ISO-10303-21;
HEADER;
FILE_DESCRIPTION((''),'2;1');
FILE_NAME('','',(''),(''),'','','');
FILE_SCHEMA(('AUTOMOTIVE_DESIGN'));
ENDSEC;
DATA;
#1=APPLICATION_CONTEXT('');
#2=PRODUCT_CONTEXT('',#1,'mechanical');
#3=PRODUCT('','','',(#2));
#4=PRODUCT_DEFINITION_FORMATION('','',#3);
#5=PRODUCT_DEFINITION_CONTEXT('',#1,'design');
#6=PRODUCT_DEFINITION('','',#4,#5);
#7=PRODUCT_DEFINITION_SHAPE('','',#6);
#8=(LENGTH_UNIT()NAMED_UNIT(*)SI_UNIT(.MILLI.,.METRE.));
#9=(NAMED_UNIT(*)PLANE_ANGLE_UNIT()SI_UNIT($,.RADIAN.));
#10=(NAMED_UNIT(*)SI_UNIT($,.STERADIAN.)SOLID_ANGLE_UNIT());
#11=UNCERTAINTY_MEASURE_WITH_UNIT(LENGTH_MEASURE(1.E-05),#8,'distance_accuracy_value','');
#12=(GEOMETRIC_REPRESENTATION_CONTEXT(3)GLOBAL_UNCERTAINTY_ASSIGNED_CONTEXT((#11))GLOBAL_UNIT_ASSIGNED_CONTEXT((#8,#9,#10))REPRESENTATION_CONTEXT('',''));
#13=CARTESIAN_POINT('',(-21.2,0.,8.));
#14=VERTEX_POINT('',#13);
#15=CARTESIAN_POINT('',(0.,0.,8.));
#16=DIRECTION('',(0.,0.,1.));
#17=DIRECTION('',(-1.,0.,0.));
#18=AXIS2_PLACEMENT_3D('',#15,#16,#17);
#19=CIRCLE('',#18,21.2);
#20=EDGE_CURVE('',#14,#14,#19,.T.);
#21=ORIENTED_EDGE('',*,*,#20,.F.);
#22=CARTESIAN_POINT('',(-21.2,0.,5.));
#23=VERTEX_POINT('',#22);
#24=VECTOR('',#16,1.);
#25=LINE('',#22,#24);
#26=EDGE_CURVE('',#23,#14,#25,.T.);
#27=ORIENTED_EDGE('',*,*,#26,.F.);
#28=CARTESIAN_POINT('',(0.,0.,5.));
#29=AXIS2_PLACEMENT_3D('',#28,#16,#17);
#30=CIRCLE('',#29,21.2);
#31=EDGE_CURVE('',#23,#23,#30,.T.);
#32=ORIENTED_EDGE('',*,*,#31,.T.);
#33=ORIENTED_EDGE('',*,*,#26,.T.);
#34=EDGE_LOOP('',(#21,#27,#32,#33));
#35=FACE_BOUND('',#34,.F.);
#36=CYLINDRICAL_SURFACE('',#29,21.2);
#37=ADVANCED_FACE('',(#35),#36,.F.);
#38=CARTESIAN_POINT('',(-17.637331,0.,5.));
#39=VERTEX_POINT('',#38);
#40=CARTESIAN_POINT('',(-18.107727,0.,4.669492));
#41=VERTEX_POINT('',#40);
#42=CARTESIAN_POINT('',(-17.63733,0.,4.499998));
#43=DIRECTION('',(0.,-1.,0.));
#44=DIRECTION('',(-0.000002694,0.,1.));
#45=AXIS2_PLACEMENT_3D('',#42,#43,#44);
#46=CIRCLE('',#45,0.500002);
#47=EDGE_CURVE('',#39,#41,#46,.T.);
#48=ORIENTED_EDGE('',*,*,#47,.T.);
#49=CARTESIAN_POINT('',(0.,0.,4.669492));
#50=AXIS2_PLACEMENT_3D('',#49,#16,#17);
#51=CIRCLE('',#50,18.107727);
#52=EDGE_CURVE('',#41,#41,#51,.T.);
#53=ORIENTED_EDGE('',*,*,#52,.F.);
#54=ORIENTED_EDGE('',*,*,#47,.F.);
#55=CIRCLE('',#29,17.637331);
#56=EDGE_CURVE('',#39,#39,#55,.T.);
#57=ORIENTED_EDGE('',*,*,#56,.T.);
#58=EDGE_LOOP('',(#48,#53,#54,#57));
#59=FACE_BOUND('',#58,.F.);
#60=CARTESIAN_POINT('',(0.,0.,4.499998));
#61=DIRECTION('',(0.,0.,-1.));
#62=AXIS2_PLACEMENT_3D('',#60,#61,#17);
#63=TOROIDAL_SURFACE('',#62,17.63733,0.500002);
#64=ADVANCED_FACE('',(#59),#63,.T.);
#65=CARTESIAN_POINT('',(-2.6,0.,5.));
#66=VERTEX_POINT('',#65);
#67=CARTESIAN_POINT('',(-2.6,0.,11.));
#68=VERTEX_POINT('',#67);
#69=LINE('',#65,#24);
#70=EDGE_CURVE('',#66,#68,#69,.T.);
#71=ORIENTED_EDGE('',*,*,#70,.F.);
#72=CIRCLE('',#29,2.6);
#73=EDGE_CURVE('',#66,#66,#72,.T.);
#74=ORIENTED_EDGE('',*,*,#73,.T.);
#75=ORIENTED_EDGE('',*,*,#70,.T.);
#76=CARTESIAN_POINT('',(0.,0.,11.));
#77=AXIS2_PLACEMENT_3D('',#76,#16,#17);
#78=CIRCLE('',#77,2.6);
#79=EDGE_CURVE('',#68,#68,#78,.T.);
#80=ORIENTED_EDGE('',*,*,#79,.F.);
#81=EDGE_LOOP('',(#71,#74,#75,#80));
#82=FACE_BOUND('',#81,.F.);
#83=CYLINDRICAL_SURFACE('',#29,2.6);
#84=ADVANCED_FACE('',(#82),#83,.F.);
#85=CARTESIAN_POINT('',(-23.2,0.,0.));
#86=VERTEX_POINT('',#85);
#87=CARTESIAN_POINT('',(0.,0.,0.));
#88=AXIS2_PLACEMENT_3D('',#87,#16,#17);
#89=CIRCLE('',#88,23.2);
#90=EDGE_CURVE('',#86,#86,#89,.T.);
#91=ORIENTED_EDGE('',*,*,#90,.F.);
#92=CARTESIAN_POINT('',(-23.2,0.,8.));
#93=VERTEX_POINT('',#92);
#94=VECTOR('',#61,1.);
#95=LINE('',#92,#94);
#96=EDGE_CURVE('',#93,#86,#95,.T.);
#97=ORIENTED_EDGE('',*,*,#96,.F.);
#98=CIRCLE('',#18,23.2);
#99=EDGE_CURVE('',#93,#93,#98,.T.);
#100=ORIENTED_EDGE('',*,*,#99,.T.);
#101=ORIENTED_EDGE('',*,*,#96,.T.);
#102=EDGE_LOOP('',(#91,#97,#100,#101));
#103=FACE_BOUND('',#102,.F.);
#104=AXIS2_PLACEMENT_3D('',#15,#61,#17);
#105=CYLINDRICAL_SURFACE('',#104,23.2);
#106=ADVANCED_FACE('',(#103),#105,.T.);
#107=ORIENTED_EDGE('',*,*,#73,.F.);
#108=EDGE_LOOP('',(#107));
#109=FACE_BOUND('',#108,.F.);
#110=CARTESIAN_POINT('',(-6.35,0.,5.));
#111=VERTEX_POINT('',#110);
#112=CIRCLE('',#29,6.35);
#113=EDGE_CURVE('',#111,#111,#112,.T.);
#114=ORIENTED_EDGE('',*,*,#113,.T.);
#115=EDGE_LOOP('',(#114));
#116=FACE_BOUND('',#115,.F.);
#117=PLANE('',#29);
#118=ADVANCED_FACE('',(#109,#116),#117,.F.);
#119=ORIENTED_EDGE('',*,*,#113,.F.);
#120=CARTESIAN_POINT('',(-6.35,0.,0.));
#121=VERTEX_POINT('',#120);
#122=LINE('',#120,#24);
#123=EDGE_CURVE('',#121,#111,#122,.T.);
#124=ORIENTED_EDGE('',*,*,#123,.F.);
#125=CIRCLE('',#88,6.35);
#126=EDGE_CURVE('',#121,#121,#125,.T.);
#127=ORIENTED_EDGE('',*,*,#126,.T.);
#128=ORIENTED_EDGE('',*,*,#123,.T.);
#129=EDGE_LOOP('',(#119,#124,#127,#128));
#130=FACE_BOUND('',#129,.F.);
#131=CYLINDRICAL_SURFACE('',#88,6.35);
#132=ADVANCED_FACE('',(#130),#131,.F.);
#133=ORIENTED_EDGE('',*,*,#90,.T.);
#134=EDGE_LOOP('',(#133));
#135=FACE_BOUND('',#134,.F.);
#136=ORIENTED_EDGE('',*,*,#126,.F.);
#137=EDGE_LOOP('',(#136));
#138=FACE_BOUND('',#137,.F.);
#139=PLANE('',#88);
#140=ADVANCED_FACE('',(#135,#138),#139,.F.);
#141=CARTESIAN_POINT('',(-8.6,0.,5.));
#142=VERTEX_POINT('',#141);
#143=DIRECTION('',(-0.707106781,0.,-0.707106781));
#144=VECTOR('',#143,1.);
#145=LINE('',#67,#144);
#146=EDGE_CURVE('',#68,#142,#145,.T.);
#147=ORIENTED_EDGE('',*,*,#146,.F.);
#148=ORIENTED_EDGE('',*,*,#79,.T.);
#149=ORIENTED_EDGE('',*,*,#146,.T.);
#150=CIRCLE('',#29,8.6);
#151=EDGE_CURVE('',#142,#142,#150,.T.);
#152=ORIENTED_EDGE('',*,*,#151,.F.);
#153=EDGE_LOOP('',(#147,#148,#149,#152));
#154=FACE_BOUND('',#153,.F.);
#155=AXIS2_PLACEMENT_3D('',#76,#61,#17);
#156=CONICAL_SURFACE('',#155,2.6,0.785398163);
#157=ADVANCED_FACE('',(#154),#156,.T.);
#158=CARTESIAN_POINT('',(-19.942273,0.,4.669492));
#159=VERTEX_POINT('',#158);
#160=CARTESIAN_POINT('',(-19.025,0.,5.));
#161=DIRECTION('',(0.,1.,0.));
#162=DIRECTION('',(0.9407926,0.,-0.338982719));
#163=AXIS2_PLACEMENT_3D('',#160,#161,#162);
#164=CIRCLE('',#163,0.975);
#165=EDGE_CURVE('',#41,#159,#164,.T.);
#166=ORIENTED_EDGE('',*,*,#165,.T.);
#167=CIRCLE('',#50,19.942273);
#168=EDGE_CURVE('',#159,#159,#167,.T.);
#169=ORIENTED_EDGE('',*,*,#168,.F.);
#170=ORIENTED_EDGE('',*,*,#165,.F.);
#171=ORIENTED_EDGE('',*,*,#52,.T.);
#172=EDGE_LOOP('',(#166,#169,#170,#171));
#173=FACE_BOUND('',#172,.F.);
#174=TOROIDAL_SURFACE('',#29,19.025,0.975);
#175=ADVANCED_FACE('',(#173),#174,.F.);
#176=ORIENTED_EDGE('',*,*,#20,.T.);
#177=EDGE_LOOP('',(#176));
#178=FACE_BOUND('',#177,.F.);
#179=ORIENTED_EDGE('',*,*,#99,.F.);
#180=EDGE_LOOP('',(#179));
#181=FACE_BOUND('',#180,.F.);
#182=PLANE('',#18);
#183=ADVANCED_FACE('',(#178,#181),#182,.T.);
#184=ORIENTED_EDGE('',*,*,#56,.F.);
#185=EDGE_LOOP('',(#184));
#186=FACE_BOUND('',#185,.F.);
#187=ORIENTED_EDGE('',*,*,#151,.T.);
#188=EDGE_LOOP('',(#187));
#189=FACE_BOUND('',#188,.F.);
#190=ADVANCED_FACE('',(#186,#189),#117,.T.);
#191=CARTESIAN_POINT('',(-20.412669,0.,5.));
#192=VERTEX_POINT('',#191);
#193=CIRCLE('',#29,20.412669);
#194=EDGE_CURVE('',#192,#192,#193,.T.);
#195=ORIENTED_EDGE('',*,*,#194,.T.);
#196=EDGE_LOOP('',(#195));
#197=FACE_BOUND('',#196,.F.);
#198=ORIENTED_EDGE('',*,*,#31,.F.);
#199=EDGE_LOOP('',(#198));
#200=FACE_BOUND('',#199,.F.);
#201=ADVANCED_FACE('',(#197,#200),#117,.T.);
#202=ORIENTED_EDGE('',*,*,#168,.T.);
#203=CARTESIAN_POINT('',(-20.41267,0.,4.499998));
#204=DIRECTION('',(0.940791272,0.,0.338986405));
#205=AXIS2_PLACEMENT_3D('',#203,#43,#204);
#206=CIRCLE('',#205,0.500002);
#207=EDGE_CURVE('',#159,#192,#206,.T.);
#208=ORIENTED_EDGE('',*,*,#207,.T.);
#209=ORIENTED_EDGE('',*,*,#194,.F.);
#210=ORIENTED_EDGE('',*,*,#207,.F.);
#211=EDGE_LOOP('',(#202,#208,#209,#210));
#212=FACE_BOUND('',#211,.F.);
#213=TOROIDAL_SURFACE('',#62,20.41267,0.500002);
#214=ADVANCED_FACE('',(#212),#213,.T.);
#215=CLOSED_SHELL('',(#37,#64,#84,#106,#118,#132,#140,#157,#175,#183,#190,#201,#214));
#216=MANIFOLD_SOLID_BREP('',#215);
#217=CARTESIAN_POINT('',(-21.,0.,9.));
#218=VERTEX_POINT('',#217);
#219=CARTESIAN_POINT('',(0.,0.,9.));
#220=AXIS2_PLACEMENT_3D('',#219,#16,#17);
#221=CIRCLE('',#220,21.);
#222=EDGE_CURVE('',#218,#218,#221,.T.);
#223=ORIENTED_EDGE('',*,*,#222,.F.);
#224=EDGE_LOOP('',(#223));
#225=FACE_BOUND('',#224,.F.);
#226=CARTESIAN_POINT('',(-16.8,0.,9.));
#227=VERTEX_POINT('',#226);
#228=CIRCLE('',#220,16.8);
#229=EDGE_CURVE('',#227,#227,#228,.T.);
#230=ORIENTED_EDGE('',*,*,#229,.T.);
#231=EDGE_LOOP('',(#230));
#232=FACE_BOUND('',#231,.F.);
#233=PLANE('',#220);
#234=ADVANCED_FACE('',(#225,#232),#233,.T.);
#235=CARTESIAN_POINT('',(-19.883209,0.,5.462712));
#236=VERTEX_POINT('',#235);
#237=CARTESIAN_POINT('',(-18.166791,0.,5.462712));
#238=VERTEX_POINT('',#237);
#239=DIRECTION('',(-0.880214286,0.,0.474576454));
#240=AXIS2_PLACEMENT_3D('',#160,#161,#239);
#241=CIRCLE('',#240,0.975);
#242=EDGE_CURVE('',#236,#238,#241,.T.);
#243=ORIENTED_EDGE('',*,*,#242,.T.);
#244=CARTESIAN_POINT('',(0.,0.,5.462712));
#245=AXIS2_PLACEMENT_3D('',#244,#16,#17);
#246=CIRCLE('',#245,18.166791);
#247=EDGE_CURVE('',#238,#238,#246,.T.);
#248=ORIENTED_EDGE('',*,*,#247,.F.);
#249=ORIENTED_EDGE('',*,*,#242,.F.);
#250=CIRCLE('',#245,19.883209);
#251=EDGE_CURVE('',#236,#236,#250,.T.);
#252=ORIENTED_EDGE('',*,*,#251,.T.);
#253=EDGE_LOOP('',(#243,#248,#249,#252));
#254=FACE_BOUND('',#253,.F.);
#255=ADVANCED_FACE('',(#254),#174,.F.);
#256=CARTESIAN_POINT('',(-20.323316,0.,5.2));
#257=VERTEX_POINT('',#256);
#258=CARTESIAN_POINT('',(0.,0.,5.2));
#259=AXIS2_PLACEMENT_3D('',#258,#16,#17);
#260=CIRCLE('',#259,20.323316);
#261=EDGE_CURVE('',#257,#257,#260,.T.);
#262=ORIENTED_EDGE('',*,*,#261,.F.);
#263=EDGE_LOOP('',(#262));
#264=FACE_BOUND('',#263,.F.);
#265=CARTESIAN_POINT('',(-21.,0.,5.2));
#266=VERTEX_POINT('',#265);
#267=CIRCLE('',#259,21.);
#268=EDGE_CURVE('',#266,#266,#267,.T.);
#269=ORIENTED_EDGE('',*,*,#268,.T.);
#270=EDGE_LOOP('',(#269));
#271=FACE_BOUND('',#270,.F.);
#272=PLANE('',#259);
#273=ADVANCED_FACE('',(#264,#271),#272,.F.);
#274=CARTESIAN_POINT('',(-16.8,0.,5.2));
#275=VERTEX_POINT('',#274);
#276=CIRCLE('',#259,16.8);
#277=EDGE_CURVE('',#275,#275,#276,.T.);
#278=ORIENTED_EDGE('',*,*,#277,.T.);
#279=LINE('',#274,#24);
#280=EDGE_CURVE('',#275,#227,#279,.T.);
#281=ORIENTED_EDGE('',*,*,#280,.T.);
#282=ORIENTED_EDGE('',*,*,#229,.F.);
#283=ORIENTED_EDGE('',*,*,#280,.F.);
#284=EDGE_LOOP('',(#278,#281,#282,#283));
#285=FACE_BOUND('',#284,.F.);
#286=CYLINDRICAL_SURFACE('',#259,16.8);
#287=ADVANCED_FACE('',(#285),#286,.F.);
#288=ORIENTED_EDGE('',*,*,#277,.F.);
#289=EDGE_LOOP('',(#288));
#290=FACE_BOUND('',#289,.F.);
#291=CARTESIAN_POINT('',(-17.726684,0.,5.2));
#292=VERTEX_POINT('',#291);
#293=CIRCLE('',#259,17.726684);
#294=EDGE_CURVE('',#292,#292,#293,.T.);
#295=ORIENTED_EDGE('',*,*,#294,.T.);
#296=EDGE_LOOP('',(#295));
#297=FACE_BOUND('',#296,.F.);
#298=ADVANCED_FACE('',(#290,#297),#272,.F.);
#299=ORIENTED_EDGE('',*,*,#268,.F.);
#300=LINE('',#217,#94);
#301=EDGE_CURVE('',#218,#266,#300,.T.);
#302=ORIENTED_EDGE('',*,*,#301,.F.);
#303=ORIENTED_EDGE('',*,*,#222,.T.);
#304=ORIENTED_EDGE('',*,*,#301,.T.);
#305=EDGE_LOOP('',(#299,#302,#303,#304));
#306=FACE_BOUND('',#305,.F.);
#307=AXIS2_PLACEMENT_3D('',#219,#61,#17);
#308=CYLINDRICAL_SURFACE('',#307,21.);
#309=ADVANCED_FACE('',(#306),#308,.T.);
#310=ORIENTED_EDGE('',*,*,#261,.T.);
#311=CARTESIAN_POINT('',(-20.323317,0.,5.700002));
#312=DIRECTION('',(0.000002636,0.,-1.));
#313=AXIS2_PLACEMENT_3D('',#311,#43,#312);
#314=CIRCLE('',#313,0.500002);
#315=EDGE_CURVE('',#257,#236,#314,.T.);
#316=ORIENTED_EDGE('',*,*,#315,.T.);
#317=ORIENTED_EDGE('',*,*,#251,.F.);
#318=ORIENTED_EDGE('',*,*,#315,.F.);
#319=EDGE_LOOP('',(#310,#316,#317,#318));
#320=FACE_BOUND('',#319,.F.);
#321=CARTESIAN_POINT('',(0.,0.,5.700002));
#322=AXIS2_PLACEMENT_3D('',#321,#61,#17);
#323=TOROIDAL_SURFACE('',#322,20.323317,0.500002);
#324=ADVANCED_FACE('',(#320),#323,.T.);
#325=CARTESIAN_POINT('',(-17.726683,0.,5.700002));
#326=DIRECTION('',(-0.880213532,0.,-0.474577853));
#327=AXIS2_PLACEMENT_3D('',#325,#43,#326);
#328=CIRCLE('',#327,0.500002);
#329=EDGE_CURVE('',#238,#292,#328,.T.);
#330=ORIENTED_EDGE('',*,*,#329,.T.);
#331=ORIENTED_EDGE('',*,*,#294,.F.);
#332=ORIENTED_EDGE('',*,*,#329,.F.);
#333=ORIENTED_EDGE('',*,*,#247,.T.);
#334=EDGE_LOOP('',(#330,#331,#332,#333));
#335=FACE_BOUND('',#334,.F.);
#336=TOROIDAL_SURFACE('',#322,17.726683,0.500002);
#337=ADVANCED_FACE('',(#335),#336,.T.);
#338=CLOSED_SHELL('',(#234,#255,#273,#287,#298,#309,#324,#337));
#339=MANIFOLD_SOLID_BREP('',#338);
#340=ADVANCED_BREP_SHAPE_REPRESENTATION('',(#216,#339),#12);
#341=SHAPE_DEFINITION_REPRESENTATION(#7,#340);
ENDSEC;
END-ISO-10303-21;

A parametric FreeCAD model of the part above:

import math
import FreeCAD as App
import Part
import Sketcher

V = App.Vector
Q = App.Units.Quantity

doc = App.newDocument("Part")
body = doc.addObject("PartDesign::Body", "Body")
body.AllowCompound = True

sketch1 = doc.addObject("Sketcher::SketchObject", "Sketch")
body.addObject(sketch1)
sketch1.AttachmentSupport = (doc.XZ_Plane, [""])
sketch1.MapMode = "FlatFace"
sketch1.addGeometry(Part.LineSegment(V(-23.2, 0, 0), V(-6.3, 0, 0)), False)
sketch1.addGeometry(Part.LineSegment(V(-6.3, 0, 0), V(-6.3, 5, 0)), False)
sketch1.addGeometry(Part.LineSegment(V(-6.3, 5, 0), V(-2.6, 5, 0)), False)
sketch1.addGeometry(Part.LineSegment(V(-2.6, 5, 0), V(-2.6, 11, 0)), False)
sketch1.addGeometry(Part.LineSegment(V(-2.6, 11, 0), V(-8.6, 5, 0)), False)
sketch1.addGeometry(Part.LineSegment(V(-8.6, 5, 0), V(-17.6, 5, 0)), False)
sketch1.addGeometry(Part.ArcOfCircle(Part.Circle(V(-17.6, 4.5, 0), V(0, 0, 1), 0.5), math.radians(90), math.radians(160)), False)
sketch1.addGeometry(Part.ArcOfCircle(Part.Circle(V(-19, 5, 0), V(0, 0, 1), 1), math.radians(-160), math.radians(-20)), False)
sketch1.addGeometry(Part.ArcOfCircle(Part.Circle(V(-20.4, 4.5, 0), V(0, 0, 1), 0.5), math.radians(20), math.radians(90)), False)
sketch1.addGeometry(Part.LineSegment(V(-20.4, 5, 0), V(-21.2, 5, 0)), False)
sketch1.addGeometry(Part.LineSegment(V(-21.2, 5, 0), V(-21.2, 8, 0)), False)
sketch1.addGeometry(Part.LineSegment(V(-21.2, 8, 0), V(-23.2, 8, 0)), False)
sketch1.addGeometry(Part.LineSegment(V(-23.2, 8, 0), V(-23.2, 0, 0)), False)
sketch1.addGeometry(Part.ArcOfCircle(Part.Circle(V(-19, 5, 0), V(0, 0, 1), 1), math.radians(28), math.radians(152)), False)
sketch1.addGeometry(Part.ArcOfCircle(Part.Circle(V(-17.7, 5.7, 0), V(0, 0, 1), 0.5), math.radians(-152), math.radians(-90)), False)
sketch1.addGeometry(Part.LineSegment(V(-17.7, 5.2, 0), V(-16.8, 5.2, 0)), False)
sketch1.addGeometry(Part.LineSegment(V(-16.8, 5.2, 0), V(-16.8, 9, 0)), False)
sketch1.addGeometry(Part.LineSegment(V(-16.8, 9, 0), V(-21, 9, 0)), False)
sketch1.addGeometry(Part.LineSegment(V(-21, 9, 0), V(-21, 5.2, 0)), False)
sketch1.addGeometry(Part.LineSegment(V(-21, 5.2, 0), V(-20.3, 5.2, 0)), False)
sketch1.addGeometry(Part.ArcOfCircle(Part.Circle(V(-20.3, 5.7, 0), V(0, 0, 1), 0.5), math.radians(-90), math.radians(-28)), False)
sketch1.addConstraint(Sketcher.Constraint("Coincident", 0, 2, 1, 1))
sketch1.addConstraint(Sketcher.Constraint("Coincident", 1, 2, 2, 1))
sketch1.addConstraint(Sketcher.Constraint("Coincident", 2, 2, 3, 1))
sketch1.addConstraint(Sketcher.Constraint("Coincident", 3, 2, 4, 1))
sketch1.addConstraint(Sketcher.Constraint("Coincident", 4, 2, 5, 1))
sketch1.addConstraint(Sketcher.Constraint("Coincident", 5, 2, 6, 1))
sketch1.addConstraint(Sketcher.Constraint("Coincident", 6, 2, 7, 2))
sketch1.addConstraint(Sketcher.Constraint("Coincident", 7, 1, 8, 1))
sketch1.addConstraint(Sketcher.Constraint("Coincident", 8, 2, 9, 1))
sketch1.addConstraint(Sketcher.Constraint("Coincident", 9, 2, 10, 1))
sketch1.addConstraint(Sketcher.Constraint("Coincident", 10, 2, 11, 1))
sketch1.addConstraint(Sketcher.Constraint("Coincident", 11, 2, 12, 1))
sketch1.addConstraint(Sketcher.Constraint("Coincident", 12, 2, 0, 1))
sketch1.addConstraint(Sketcher.Constraint("Tangent", 13, 1, 14, 1))
sketch1.addConstraint(Sketcher.Constraint("Coincident", 14, 2, 15, 1))
sketch1.addConstraint(Sketcher.Constraint("Coincident", 15, 2, 16, 1))
sketch1.addConstraint(Sketcher.Constraint("Coincident", 16, 2, 17, 1))
sketch1.addConstraint(Sketcher.Constraint("Coincident", 17, 2, 18, 1))
sketch1.addConstraint(Sketcher.Constraint("Coincident", 18, 2, 19, 1))
sketch1.addConstraint(Sketcher.Constraint("Coincident", 19, 2, 20, 1))
sketch1.addConstraint(Sketcher.Constraint("Tangent", 20, 2, 13, 2))
sketch1.addConstraint(Sketcher.Constraint("Horizontal", 0))
sketch1.addConstraint(Sketcher.Constraint("Vertical", 1))
sketch1.addConstraint(Sketcher.Constraint("Horizontal", 2))
sketch1.addConstraint(Sketcher.Constraint("Vertical", 3))
sketch1.addConstraint(Sketcher.Constraint("Horizontal", 5))
sketch1.addConstraint(Sketcher.Constraint("Horizontal", 9))
sketch1.addConstraint(Sketcher.Constraint("Vertical", 10))
sketch1.addConstraint(Sketcher.Constraint("Horizontal", 11))
sketch1.addConstraint(Sketcher.Constraint("Vertical", 12))
sketch1.addConstraint(Sketcher.Constraint("Horizontal", 15))
sketch1.addConstraint(Sketcher.Constraint("Vertical", 16))
sketch1.addConstraint(Sketcher.Constraint("Horizontal", 17))
sketch1.addConstraint(Sketcher.Constraint("Vertical", 18))
sketch1.addConstraint(Sketcher.Constraint("Horizontal", 19))
sketch1.addConstraint(Sketcher.Constraint("Coincident", 13, 3, 7, 3))
sketch1.addConstraint(Sketcher.Constraint("Equal", 6, 8))
sketch1.addConstraint(Sketcher.Constraint("Equal", 7, 13))
sketch1.addConstraint(Sketcher.Constraint("Equal", 8, 14))
sketch1.addConstraint(Sketcher.Constraint("Equal", 14, 20))
sketch1.addConstraint(Sketcher.Constraint("PointOnObject", 0, 2, -1))
sketch1.addConstraint(Sketcher.Constraint("Horizontal", 6, 3, 8, 3))
sketch1.addConstraint(Sketcher.Constraint("Horizontal", 14, 3, 20, 3))
sketch1.addConstraint(Sketcher.Constraint("Horizontal", 13, 3, 1, 2))
sketch1.addConstraint(Sketcher.Constraint("Horizontal", 2, 2, 4, 2))
sketch1.addConstraint(Sketcher.Constraint("Horizontal", 6, 2, 7, 1))
sketch1.addConstraint(Sketcher.Constraint("Vertical", 6, 3, 5, 2))
sketch1.addConstraint(Sketcher.Constraint("Vertical", 20, 3, 19, 2))
sketch1.addConstraint(Sketcher.Constraint("Radius", 6, Q("0.500002 mm")))
sketch1.addConstraint(Sketcher.Constraint("DistanceX", 11, 2, 11, 1, Q("2 mm")))
sketch1.addConstraint(Sketcher.Constraint("DistanceY", 1, 1, 1, 2, Q("5 mm")))
sketch1.addConstraint(Sketcher.Constraint("DistanceY", 3, 1, 3, 2, Q("6 mm")))
sketch1.addConstraint(Sketcher.Constraint("DistanceY", 10, 1, 10, 2, Q("3 mm")))
sketch1.addConstraint(Sketcher.Constraint("Angle", 4, Q("-135 deg")))
sketch1.addConstraint(Sketcher.Constraint("DistanceX", 17, 2, 17, 1, Q("4.2 mm")))
sketch1.addConstraint(Sketcher.Constraint("DistanceY", 16, 1, 16, 2, Q("3.8 mm")))
sketch1.addConstraint(Sketcher.Constraint("DistanceY", -1, 1, 16, 2, Q("9 mm")))
sketch1.addConstraint(Sketcher.Constraint("DistanceX", 17, 2, -1, 1, Q("21 mm")))
sketch1.addConstraint(Sketcher.Constraint("Radius", 7, Q("0.975 mm")))
sketch1.addConstraint(Sketcher.Constraint("DistanceX", 0, 1, 0, 2, Q("16.85 mm")))
sketch1.addConstraint(Sketcher.Constraint("DistanceX", 2, 1, 2, 2, Q("3.75 mm")))
sketch1.addConstraint(Sketcher.Constraint("DistanceX", 2, 2, -1, 1, Q("2.6 mm")))
sketch1.addConstraint(Sketcher.Constraint("DistanceX", 7, 3, -1, 1, Q("19.025 mm")))
sketch1.addConstraint(Sketcher.Constraint("DistanceX", 9, 2, 9, 1, Q("0.787331 mm")))
sketch1.addConstraint(Sketcher.Constraint("DistanceX", 15, 1, 15, 2, Q("0.926684 mm")))
sketch1.addConstraint(Sketcher.Constraint("DistanceY", -1, 1, 7, 1, Q("4.669492 mm")))
revolution = doc.addObject("PartDesign::Revolution", "Revolution")
body.addObject(revolution)
revolution.Profile = sketch1
revolution.ReferenceAxis = (sketch1, ["V_Axis"])
revolution.Angle = 360

doc.recompute()
